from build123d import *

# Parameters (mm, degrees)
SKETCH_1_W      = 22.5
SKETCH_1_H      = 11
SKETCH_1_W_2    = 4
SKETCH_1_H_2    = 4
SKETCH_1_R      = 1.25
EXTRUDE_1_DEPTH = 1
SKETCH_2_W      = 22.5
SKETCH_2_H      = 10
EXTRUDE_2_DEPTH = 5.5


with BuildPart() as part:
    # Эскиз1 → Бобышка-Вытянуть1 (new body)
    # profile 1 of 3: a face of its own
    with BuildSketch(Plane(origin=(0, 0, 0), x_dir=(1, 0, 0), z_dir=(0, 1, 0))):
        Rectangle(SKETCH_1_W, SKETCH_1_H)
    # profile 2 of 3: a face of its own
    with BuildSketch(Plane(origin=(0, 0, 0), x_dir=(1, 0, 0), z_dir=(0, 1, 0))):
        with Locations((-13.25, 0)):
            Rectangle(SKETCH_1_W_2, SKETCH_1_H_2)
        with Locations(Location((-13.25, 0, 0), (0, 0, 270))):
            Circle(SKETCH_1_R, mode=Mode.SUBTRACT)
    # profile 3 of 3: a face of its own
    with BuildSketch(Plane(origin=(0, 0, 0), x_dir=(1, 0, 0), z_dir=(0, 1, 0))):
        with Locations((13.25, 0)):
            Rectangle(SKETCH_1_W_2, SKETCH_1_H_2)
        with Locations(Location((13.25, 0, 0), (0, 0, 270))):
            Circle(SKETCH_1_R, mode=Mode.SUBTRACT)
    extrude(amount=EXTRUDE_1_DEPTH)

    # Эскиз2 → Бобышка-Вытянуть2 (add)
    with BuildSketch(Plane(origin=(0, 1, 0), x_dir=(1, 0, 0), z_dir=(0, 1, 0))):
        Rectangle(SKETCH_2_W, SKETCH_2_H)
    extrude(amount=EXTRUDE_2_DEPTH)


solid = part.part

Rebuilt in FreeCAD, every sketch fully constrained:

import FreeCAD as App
import Part
import Sketcher

V = App.Vector
Q = App.Units.Quantity


def add_polygon(sketch, points):
    """Adds a closed chain of lines whose ends are joined by coincident constraints."""
    first, n = sketch.GeometryCount, len(points)
    for a, b in zip(points, points[1:] + points[:1]):
        sketch.addGeometry(Part.LineSegment(App.Vector(*a, 0), App.Vector(*b, 0)), False)
    for i in range(n):
        sketch.addConstraint(Sketcher.Constraint("Coincident", first + i, 2, first + (i + 1) % n, 1))

doc = App.newDocument("Part")
params = doc.addObject("Spreadsheet::Sheet", "Params")
for row, (alias, value) in enumerate([
    ("sketch1_diameter", "2.5 mm"),
    ("sketch1_width", "4 mm"),
    ("sketch1_width2", "22.5 mm"),
    ("sketch1_height", "3.5 mm"),
    ("pad1_length", "1 mm"),
    ("sketch2_height", "10 mm"),
    ("sketch2_width", "22.5 mm"),
    ("pad2_length", "5.5 mm"),
], start=1):
    params.set(f"A{row}", alias)
    params.set(f"B{row}", "=" + value)
    params.setAlias(f"B{row}", alias)

body = doc.addObject("PartDesign::Body", "Body")

sketch1 = body.newObject("Sketcher::SketchObject", "Sketch")
sketch1.AttachmentSupport = (doc.getObject("XZ_Plane"), [""])
sketch1.MapMode = "FlatFace"
add_polygon(sketch1, [(-11.25, 2), (-11.25, 5.5), (11.25, 5.5), (11.25, 2), (15.25, 2), (15.25, -2), (11.25, -2), (11.25, -5.5), (-11.25, -5.5), (-11.25, -2), (-15.25, -2), (-15.25, 2)])
sketch1.addGeometry(Part.Circle(V(-13.25, 0, 0), V(0, 0, 1), 1.25), False)
sketch1.addGeometry(Part.Circle(V(13.25, 0, 0), V(0, 0, 1), 1.25), False)
sketch1.addConstraint([
    Sketcher.Constraint("Vertical", 0),
    Sketcher.Constraint("Horizontal", 1),
    Sketcher.Constraint("Vertical", 2),
    Sketcher.Constraint("Horizontal", 3),
    Sketcher.Constraint("Vertical", 4),
    Sketcher.Constraint("Horizontal", 5),
    Sketcher.Constraint("Vertical", 6),
    Sketcher.Constraint("Horizontal", 7),
    Sketcher.Constraint("Vertical", 8),
    Sketcher.Constraint("Horizontal", 9),
    Sketcher.Constraint("Vertical", 10),
    Sketcher.Constraint("Horizontal", 11),
    Sketcher.Constraint("Equal", 12, 13),
    Sketcher.Constraint("Symmetric", 12, 3, 13, 3, -1, 1),
    Sketcher.Constraint("Symmetric", 0, 2, 6, 2, -1, 1),
    Sketcher.Constraint("Symmetric", 2, 2, 8, 2, -1, 1),
    Sketcher.Constraint("Symmetric", 4, 2, 10, 2, -1, 1),
    Sketcher.Constraint("Symmetric", 5, 2, 8, 2, -2),
    Sketcher.Constraint("PointOnObject", 12, 3, -1),
    Sketcher.Constraint("Equal", 11, 4),
    Sketcher.Constraint("Diameter", 12, Q("2.5 mm")),
    Sketcher.Constraint("DistanceX", 3, 1, 3, 2, Q("4 mm")),
    Sketcher.Constraint("DistanceX", 1, 1, 1, 2, Q("22.5 mm")),
    Sketcher.Constraint("DistanceY", 0, 1, 0, 2, Q("3.5 mm")),
    Sketcher.Constraint("DistanceX", 12, 3, 0, 2, Q("2 mm")),
])
sketch1.setExpression("Constraints[32]", "Params.sketch1_diameter")
sketch1.setExpression("Constraints[33]", "Params.sketch1_width")
sketch1.setExpression("Constraints[34]", "Params.sketch1_width2")
sketch1.setExpression("Constraints[35]", "Params.sketch1_height")
pad1 = body.newObject("PartDesign::Pad", "Pad")
pad1.Profile = sketch1
pad1.setExpression("Length", "Params.pad1_length")
pad1.Reversed = True

sketch2 = body.newObject("Sketcher::SketchObject", "Sketch001")
sketch2.AttachmentSupport = (doc.getObject("XZ_Plane"), [""])
sketch2.MapMode = "FlatFace"
sketch2.AttachmentOffset = App.Placement(V(0, 0, -1), App.Rotation())
add_polygon(sketch2, [(-11.25, -5), (-11.25, 5), (11.25, 5), (11.25, -5)])
sketch2.addConstraint([
    Sketcher.Constraint("Vertical", 0),
    Sketcher.Constraint("Horizontal", 1),
    Sketcher.Constraint("Vertical", 2),
    Sketcher.Constraint("Horizontal", 3),
    Sketcher.Constraint("Symmetric", 0, 2, 2, 2, -1, 1),
    Sketcher.Constraint("DistanceY", 0, 1, 0, 2, Q("10 mm")),
    Sketcher.Constraint("DistanceX", 1, 1, 1, 2, Q("22.5 mm")),
])
sketch2.setExpression("Constraints[9]", "Params.sketch2_height")
sketch2.setExpression("Constraints[10]", "Params.sketch2_width")
pad2 = body.newObject("PartDesign::Pad", "Pad001")
pad2.Profile = sketch2
pad2.setExpression("Length", "Params.pad2_length")
pad2.Reversed = True

doc.recompute()
